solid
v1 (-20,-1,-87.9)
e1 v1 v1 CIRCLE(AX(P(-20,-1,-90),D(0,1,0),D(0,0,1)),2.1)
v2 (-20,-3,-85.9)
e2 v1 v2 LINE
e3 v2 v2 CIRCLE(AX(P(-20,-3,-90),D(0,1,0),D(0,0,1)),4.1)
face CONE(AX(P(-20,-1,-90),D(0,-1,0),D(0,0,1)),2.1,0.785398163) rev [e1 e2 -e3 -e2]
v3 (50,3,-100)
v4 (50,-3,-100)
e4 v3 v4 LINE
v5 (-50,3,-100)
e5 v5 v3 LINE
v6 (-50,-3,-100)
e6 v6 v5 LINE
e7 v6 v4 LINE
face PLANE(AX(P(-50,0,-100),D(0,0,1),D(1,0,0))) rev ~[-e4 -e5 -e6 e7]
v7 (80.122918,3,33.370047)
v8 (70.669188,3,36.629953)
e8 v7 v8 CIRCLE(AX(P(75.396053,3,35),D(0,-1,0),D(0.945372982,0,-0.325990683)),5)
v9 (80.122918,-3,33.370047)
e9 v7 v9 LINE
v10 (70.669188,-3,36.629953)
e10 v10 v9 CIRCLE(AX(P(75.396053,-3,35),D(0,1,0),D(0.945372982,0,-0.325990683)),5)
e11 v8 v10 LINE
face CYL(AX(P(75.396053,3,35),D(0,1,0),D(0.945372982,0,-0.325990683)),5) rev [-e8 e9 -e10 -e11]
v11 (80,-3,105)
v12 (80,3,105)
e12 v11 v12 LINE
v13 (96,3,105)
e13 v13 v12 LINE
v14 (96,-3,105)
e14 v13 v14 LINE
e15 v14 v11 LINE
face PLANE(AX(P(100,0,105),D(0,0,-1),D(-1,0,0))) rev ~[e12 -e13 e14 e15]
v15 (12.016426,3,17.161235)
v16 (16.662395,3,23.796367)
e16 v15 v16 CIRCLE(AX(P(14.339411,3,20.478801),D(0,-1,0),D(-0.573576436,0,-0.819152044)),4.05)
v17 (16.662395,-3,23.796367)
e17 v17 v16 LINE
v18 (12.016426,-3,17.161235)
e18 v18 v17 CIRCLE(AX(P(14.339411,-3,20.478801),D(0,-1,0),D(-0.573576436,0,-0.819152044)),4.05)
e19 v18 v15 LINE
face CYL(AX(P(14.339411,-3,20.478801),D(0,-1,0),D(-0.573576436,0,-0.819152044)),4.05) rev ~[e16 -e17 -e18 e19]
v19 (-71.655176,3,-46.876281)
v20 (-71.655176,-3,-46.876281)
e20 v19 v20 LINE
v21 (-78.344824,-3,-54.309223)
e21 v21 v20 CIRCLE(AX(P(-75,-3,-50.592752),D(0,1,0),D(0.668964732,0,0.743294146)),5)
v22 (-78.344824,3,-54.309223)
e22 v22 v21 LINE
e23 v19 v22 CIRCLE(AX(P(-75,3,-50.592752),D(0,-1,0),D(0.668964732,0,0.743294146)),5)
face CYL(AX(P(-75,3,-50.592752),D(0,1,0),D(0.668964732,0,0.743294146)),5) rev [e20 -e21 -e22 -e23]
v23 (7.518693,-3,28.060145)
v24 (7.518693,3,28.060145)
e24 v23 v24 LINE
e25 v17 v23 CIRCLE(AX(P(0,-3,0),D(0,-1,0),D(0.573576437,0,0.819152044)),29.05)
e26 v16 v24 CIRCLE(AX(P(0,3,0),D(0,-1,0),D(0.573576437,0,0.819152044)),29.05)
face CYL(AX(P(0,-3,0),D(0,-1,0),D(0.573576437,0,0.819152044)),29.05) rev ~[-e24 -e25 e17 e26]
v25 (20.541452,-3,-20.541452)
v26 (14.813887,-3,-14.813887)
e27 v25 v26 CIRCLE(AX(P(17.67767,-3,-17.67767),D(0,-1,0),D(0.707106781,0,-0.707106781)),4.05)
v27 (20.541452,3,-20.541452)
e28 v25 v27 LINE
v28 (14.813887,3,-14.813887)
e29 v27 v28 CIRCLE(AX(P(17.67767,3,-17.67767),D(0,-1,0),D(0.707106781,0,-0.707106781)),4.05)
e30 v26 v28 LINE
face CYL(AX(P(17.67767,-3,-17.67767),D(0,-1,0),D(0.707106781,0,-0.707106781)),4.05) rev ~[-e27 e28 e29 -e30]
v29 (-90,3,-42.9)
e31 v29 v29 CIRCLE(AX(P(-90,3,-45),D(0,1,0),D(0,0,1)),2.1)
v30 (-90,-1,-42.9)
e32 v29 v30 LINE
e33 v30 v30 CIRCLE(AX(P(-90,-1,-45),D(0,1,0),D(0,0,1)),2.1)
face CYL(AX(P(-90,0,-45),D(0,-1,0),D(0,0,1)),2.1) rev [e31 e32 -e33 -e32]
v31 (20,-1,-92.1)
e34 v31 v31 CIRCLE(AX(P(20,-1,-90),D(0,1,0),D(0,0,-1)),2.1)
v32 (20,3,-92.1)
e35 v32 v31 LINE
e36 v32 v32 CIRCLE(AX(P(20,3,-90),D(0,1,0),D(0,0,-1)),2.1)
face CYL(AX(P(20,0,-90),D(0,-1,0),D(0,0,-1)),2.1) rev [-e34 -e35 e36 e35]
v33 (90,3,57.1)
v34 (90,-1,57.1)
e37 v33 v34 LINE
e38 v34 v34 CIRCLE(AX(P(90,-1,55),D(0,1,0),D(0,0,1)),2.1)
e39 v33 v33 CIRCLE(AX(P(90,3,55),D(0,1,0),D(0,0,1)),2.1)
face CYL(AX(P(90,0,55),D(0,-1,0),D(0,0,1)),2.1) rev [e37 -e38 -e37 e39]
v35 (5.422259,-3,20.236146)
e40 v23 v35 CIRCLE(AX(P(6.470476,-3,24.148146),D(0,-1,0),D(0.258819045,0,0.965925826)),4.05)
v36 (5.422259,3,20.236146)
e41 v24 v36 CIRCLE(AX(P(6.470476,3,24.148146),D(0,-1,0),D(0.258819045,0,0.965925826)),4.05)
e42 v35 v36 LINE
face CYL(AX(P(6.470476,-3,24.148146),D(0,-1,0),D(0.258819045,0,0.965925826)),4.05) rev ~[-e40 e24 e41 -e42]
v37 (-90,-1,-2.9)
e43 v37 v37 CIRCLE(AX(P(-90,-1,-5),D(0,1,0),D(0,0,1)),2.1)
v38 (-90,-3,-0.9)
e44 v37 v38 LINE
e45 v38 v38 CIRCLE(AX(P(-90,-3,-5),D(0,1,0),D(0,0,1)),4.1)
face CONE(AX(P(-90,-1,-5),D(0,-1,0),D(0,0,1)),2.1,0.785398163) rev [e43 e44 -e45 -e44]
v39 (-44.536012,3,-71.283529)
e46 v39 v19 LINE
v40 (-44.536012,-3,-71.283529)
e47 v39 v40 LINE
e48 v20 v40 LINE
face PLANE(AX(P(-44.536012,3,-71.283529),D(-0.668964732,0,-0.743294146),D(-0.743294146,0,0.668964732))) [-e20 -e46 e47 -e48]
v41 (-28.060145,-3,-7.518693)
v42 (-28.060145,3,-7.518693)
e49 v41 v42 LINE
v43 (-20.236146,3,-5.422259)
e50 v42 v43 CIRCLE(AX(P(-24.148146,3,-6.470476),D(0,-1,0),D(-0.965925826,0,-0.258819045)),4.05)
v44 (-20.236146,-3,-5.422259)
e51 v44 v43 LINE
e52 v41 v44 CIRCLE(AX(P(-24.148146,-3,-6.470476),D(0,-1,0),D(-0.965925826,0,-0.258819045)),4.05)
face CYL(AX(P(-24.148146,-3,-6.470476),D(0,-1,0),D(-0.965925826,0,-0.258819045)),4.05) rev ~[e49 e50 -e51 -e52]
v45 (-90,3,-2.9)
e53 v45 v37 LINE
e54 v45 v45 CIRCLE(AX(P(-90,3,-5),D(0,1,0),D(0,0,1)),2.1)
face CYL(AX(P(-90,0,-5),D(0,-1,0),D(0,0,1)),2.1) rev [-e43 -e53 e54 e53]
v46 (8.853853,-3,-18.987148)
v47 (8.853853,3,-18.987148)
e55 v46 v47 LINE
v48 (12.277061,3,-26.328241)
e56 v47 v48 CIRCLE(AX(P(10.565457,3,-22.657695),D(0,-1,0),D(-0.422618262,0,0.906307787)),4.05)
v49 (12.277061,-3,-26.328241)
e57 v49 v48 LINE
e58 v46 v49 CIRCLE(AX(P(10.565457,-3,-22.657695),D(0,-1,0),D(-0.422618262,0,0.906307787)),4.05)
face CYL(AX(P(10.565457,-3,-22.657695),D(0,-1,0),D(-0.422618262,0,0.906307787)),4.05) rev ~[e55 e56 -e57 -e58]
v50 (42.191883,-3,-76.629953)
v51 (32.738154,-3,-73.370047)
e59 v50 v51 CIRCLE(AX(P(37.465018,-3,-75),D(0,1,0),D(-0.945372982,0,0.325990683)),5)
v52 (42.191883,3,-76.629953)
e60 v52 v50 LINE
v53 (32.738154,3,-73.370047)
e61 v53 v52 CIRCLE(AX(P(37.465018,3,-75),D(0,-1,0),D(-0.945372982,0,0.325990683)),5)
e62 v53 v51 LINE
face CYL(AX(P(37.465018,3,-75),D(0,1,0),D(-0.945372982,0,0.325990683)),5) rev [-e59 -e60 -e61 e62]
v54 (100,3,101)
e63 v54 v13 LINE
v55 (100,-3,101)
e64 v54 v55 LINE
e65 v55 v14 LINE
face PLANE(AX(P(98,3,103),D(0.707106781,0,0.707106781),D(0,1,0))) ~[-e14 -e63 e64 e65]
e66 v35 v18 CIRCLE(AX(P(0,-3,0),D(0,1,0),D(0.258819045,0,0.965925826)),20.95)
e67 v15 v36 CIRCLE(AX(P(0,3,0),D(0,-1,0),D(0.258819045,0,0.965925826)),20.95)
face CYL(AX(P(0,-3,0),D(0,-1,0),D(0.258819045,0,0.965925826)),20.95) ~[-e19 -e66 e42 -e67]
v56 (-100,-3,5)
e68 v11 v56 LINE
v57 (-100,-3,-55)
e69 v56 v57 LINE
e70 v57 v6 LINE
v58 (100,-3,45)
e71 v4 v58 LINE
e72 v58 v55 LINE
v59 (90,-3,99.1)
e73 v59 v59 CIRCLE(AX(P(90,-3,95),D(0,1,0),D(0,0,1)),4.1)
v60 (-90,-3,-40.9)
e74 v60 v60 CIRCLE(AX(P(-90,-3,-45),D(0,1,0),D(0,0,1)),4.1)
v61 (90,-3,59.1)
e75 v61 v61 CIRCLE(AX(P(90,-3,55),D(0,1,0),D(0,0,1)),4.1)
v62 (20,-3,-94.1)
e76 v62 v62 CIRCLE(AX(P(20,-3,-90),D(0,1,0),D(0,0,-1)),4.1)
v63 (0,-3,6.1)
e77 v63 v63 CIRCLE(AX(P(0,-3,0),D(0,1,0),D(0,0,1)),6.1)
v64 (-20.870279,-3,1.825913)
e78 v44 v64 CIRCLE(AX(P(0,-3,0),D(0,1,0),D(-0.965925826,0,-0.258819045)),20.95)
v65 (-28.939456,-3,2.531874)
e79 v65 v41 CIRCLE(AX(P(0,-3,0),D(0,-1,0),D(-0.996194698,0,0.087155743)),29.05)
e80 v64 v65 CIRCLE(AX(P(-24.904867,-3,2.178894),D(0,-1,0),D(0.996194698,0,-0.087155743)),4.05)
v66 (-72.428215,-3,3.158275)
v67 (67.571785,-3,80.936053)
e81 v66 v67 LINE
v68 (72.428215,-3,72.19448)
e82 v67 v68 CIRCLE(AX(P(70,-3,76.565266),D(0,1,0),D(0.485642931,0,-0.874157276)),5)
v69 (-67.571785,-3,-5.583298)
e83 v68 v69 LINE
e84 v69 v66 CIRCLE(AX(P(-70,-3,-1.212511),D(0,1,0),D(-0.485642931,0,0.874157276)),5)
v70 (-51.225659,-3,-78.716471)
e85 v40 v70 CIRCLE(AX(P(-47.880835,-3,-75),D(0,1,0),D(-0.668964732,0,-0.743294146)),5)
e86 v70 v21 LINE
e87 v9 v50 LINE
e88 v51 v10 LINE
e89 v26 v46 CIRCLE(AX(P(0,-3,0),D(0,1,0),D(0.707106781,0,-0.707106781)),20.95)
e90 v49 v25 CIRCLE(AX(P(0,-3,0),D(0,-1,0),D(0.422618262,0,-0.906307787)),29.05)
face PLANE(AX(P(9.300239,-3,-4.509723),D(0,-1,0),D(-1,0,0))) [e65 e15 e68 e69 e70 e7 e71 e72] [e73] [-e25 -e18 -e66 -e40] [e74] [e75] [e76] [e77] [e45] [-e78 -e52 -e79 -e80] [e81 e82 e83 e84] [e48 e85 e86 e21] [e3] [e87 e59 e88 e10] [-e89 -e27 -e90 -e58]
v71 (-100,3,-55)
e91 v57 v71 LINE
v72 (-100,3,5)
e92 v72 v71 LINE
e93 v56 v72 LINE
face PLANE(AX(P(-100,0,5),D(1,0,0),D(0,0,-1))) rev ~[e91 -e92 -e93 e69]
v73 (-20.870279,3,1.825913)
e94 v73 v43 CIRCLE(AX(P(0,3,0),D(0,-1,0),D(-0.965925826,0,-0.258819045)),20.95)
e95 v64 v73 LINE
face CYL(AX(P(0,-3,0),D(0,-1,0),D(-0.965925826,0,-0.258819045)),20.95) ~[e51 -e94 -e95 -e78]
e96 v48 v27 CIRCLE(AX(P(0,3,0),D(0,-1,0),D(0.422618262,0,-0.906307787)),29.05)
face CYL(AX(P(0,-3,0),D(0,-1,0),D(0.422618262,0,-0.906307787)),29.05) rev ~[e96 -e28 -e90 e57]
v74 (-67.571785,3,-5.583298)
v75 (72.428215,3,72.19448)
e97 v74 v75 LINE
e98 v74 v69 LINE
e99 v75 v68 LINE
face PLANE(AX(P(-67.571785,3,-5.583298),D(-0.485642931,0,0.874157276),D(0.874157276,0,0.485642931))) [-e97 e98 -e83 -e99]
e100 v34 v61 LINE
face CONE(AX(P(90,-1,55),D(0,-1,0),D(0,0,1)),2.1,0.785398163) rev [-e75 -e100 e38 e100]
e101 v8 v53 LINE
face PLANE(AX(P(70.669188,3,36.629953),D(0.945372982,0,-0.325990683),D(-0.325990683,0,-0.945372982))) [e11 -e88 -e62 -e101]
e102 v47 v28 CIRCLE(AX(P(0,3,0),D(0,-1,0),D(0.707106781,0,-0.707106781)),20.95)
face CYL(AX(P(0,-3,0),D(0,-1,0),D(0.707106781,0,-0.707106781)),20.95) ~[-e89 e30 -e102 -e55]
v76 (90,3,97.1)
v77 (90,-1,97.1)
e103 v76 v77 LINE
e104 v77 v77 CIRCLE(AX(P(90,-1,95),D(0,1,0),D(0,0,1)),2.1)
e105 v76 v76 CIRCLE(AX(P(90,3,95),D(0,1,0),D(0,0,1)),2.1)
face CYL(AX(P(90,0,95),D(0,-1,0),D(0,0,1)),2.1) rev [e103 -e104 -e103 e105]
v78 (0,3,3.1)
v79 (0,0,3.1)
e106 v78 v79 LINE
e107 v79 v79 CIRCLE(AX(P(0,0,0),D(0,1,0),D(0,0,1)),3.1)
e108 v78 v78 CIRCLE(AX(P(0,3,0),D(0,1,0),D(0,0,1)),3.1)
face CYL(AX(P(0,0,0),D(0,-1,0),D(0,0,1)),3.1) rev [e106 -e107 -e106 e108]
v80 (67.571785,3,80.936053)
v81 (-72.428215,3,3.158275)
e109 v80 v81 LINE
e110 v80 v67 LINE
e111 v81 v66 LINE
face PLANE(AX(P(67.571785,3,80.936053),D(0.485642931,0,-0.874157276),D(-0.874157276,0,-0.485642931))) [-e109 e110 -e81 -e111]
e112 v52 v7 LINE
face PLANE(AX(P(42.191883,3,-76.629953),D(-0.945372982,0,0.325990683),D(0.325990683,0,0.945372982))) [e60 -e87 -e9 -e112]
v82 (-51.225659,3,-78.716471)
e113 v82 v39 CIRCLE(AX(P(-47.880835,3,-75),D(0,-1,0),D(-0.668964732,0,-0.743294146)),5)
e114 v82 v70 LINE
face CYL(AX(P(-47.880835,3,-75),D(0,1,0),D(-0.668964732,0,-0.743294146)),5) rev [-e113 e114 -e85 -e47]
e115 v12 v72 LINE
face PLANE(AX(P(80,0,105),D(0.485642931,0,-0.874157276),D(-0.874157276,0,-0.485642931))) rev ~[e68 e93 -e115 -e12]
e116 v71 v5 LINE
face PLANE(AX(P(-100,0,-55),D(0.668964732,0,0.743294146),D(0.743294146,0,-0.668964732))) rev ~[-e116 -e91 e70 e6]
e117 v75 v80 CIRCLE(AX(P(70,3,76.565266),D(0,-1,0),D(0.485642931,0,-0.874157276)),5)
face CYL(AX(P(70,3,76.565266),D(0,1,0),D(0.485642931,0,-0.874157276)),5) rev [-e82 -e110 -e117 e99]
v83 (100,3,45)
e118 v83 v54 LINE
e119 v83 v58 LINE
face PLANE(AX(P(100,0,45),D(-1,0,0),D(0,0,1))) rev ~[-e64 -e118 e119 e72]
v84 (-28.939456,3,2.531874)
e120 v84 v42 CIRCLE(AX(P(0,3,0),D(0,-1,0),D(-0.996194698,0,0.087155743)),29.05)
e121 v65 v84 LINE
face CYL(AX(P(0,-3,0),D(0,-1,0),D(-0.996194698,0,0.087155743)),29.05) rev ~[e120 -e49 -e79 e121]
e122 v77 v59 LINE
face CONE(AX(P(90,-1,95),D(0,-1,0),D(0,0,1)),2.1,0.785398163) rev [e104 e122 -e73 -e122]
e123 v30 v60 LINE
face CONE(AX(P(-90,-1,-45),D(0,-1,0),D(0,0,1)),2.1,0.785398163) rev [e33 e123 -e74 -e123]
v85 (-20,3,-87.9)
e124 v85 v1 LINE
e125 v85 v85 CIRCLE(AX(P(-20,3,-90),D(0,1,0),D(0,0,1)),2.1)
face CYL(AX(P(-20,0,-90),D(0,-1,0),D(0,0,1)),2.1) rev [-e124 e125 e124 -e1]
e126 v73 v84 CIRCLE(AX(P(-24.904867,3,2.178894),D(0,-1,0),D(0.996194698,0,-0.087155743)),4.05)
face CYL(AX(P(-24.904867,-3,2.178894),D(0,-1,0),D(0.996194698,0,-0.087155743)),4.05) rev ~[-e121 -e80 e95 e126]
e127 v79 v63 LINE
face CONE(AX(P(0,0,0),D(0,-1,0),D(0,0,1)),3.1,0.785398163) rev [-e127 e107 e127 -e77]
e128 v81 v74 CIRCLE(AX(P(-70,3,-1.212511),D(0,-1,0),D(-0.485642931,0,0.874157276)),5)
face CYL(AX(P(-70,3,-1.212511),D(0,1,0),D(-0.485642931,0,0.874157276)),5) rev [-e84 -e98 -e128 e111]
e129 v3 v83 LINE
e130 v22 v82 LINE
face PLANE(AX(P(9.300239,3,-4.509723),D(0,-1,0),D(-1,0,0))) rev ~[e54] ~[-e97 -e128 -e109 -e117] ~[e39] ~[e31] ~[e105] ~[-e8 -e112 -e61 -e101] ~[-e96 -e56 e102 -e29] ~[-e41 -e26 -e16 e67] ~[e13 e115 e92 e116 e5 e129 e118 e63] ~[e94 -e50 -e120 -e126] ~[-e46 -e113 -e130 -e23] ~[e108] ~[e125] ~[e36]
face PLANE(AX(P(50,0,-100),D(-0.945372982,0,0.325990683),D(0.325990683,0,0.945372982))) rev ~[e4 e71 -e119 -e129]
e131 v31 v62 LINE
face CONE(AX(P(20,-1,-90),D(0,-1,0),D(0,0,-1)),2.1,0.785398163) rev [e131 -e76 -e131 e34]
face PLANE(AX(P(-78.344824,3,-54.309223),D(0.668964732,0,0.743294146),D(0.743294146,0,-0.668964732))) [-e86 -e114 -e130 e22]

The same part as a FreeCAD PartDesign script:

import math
import FreeCAD as App
import Part
import Sketcher

V = App.Vector
Q = App.Units.Quantity


def edges_at(feature, points):
    """Names of the edges that pass closest to the given points."""
    edges = feature.Shape.Edges
    near = lambda p: min(range(len(edges)), key=lambda i: edges[i].distToShape(Part.Vertex(*p))[0])
    return sorted({f"Edge{near(p) + 1}" for p in points})


def add_polygon(sketch, points):
    """Adds a closed chain of lines whose ends are joined by coincident constraints."""
    first, n = sketch.GeometryCount, len(points)
    for a, b in zip(points, points[1:] + points[:1]):
        sketch.addGeometry(Part.LineSegment(App.Vector(*a, 0), App.Vector(*b, 0)), False)
    for i in range(n):
        sketch.addConstraint(Sketcher.Constraint("Coincident", first + i, 2, first + (i + 1) % n, 1))

doc = App.newDocument("Part")
body = doc.addObject("PartDesign::Body", "Body")

sketch1 = body.newObject("Sketcher::SketchObject", "Sketch")
sketch1.AttachmentSupport = (doc.getObject("XZ_Plane"), [""])
sketch1.MapMode = "FlatFace"
add_polygon(sketch1, [(50, -100), (-50, -100), (-100, -55), (-100, 5), (80, 105), (100, 105), (100, 45)])
sketch1.addGeometry(Part.Circle(V(90, 95, 0), V(0, 0, 1), 2.1), False)
sketch1.addGeometry(Part.Circle(V(90, 55, 0), V(0, 0, 1), 2.1), False)
sketch1.addGeometry(Part.Circle(V(20, -90, 0), V(0, 0, 1), 2.1), False)
sketch1.addGeometry(Part.Circle(V(0, 0, 0), V(0, 0, 1), 3.1), False)
sketch1.addGeometry(Part.Circle(V(-90, -5, 0), V(0, 0, 1), 2.1), False)
sketch1.addGeometry(Part.Circle(V(-20, -90, 0), V(0, 0, 1), 2.1), False)
sketch1.addGeometry(Part.Circle(V(-90, -45, 0), V(0, 0, 1), 2.1), False)
sketch1.addConstraint(Sketcher.Constraint("Horizontal", 0))
sketch1.addConstraint(Sketcher.Constraint("Vertical", 2))
sketch1.addConstraint(Sketcher.Constraint("Horizontal", 4))
sketch1.addConstraint(Sketcher.Constraint("Vertical", 5))
sketch1.addConstraint(Sketcher.Constraint("Coincident", 10, 3, -1, 1))
sketch1.addConstraint(Sketcher.Constraint("Equal", 7, 8))
sketch1.addConstraint(Sketcher.Constraint("Equal", 8, 9))
sketch1.addConstraint(Sketcher.Constraint("Equal", 9, 11))
sketch1.addConstraint(Sketcher.Constraint("Equal", 11, 12))
sketch1.addConstraint(Sketcher.Constraint("Equal", 12, 13))
sketch1.addConstraint(Sketcher.Constraint("Symmetric", 9, 3, 12, 3, -2))
sketch1.addConstraint(Sketcher.Constraint("Vertical", 7, 3, 8, 3))
sketch1.addConstraint(Sketcher.Constraint("Vertical", 11, 3, 13, 3))
sketch1.addConstraint(Sketcher.Constraint("Equal", 2, 5))
sketch1.addConstraint(Sketcher.Constraint("Diameter", 7, Q("4.2 mm")))
sketch1.addConstraint(Sketcher.Constraint("Diameter", 10, Q("6.2 mm")))
sketch1.addConstraint(Sketcher.Constraint("DistanceX", 0, 2, 0, 1, Q("100 mm")))
sketch1.addConstraint(Sketcher.Constraint("DistanceX", 4, 1, 4, 2, Q("20 mm")))
sketch1.addConstraint(Sketcher.Constraint("DistanceY", 2, 1, 2, 2, Q("60 mm")))
sketch1.addConstraint(Sketcher.Constraint("DistanceX", -1, 1, 7, 3, Q("90 mm")))
sketch1.addConstraint(Sketcher.Constraint("DistanceY", -1, 1, 7, 3, Q("95 mm")))
sketch1.addConstraint(Sketcher.Constraint("DistanceY", -1, 1, 8, 3, Q("55 mm")))
sketch1.addConstraint(Sketcher.Constraint("DistanceX", -1, 1, 9, 3, Q("20 mm")))
sketch1.addConstraint(Sketcher.Constraint("DistanceY", 9, 3, -1, 1, Q("90 mm")))
sketch1.addConstraint(Sketcher.Constraint("DistanceX", 11, 3, -1, 1, Q("90 mm")))
sketch1.addConstraint(Sketcher.Constraint("DistanceY", 11, 3, -1, 1, Q("5 mm")))
sketch1.addConstraint(Sketcher.Constraint("DistanceY", 13, 3, -1, 1, Q("45 mm")))
sketch1.addConstraint(Sketcher.Constraint("DistanceX", 0, 2, -1, 1, Q("50 mm")))
sketch1.addConstraint(Sketcher.Constraint("DistanceY", 0, 2, -1, 1, Q("100 mm")))
sketch1.addConstraint(Sketcher.Constraint("DistanceX", 1, 2, -1, 1, Q("100 mm")))
sketch1.addConstraint(Sketcher.Constraint("DistanceY", 1, 2, -1, 1, Q("55 mm")))
sketch1.addConstraint(Sketcher.Constraint("DistanceX", -1, 1, 3, 2, Q("80 mm")))
sketch1.addConstraint(Sketcher.Constraint("DistanceY", -1, 1, 3, 2, Q("105 mm")))
pad1 = body.newObject("PartDesign::Pad", "Pad")
pad1.Profile = sketch1
pad1.Length = 6
pad1.Midplane = True
doc.recompute()

chamfer = body.newObject("PartDesign::Chamfer", "Chamfer")
chamfer.Base = (pad1, edges_at(pad1, [
    (-20, -3, -92.1),
    (-90, -3, -47.1),
    (-90, -3, -7.1),
    (90, -3, 52.9),
    (90, -3, 92.9),
    (20, -3, -87.9),
]))
chamfer.Size = 2
doc.recompute()

chamfer2 = body.newObject("PartDesign::Chamfer", "Chamfer001")
chamfer2.Base = (chamfer, edges_at(chamfer, [(100, 0, 105)]))
chamfer2.Size = 4

sketch2 = body.newObject("Sketcher::SketchObject", "Sketch001")
sketch2.AttachmentSupport = (doc.getObject("XZ_Plane"), [""])
sketch2.MapMode = "FlatFace"
sketch2.AttachmentOffset = App.Placement(V(0, 0, -3), App.Rotation())
sketch2.addGeometry(Part.LineSegment(V(-51, -79, 0), V(-78, -54, 0)), False)
sketch2.addGeometry(Part.ArcOfCircle(Part.Circle(V(-75, -51, 0), V(0, 0, 1), 5), math.radians(48), math.radians(228)), False)
sketch2.addGeometry(Part.LineSegment(V(-72, -47, 0), V(-45, -71, 0)), False)
sketch2.addGeometry(Part.ArcOfCircle(Part.Circle(V(-48, -75, 0), V(0, 0, 1), 5), math.radians(-132), math.radians(48)), False)
sketch2.addGeometry(Part.LineSegment(V(33, -73, 0), V(71, 37, 0)), False)
sketch2.addGeometry(Part.ArcOfCircle(Part.Circle(V(75, 35, 0), V(0, 0, 1), 5), math.radians(-19), math.radians(161)), False)
sketch2.addGeometry(Part.LineSegment(V(80, 33, 0), V(42, -77, 0)), False)
sketch2.addGeometry(Part.ArcOfCircle(Part.Circle(V(37, -75, 0), V(0, 0, 1), 5), math.radians(161), math.radians(341)), False)
sketch2.addGeometry(Part.LineSegment(V(-72, 3, 0), V(68, 81, 0)), False)
sketch2.addGeometry(Part.ArcOfCircle(Part.Circle(V(70, 77, 0), V(0, 0, 1), 5), math.radians(-61), math.radians(119)), False)
sketch2.addGeometry(Part.LineSegment(V(72, 72, 0), V(-68, -6, 0)), False)
sketch2.addGeometry(Part.ArcOfCircle(Part.Circle(V(-70, -1, 0), V(0, 0, 1), 5), math.radians(119), math.radians(299)), False)
sketch2.addConstraint(Sketcher.Constraint("Tangent", 0, 2, 1, 2))
sketch2.addConstraint(Sketcher.Constraint("Tangent", 1, 1, 2, 1))
sketch2.addConstraint(Sketcher.Constraint("Tangent", 2, 2, 3, 2))
sketch2.addConstraint(Sketcher.Constraint("Tangent", 3, 1, 0, 1))
sketch2.addConstraint(Sketcher.Constraint("Tangent", 4, 2, 5, 2))
sketch2.addConstraint(Sketcher.Constraint("Tangent", 5, 1, 6, 1))
sketch2.addConstraint(Sketcher.Constraint("Tangent", 6, 2, 7, 2))
sketch2.addConstraint(Sketcher.Constraint("Tangent", 7, 1, 4, 1))
sketch2.addConstraint(Sketcher.Constraint("Tangent", 8, 2, 9, 2))
sketch2.addConstraint(Sketcher.Constraint("Tangent", 9, 1, 10, 1))
sketch2.addConstraint(Sketcher.Constraint("Tangent", 10, 2, 11, 2))
sketch2.addConstraint(Sketcher.Constraint("Tangent", 11, 1, 8, 1))
sketch2.addConstraint(Sketcher.Constraint("Equal", 1, 3))
sketch2.addConstraint(Sketcher.Constraint("Equal", 3, 5))
sketch2.addConstraint(Sketcher.Constraint("Equal", 5, 7))
sketch2.addConstraint(Sketcher.Constraint("Equal", 7, 9))
sketch2.addConstraint(Sketcher.Constraint("Equal", 9, 11))
sketch2.addConstraint(Sketcher.Constraint("Horizontal", 3, 3, 7, 3))
sketch2.addConstraint(Sketcher.Constraint("Radius", 1, Q("5 mm")))
sketch2.addConstraint(Sketcher.Constraint("DistanceX", 1, 3, -1, 1, Q("75 mm")))
sketch2.addConstraint(Sketcher.Constraint("DistanceY", 3, 3, -1, 1, Q("75 mm")))
sketch2.addConstraint(Sketcher.Constraint("DistanceY", -1, 1, 5, 3, Q("35 mm")))
sketch2.addConstraint(Sketcher.Constraint("DistanceX", -1, 1, 9, 3, Q("70 mm")))
sketch2.addConstraint(Sketcher.Constraint("DistanceX", 11, 3, -1, 1, Q("70 mm")))
sketch2.addConstraint(Sketcher.Constraint("DistanceX", 2, 2, 4, 2, Q("115.2052 mm")))
sketch2.addConstraint(Sketcher.Constraint("DistanceX", 7, 3, 5, 1, Q("42.657899 mm")))
sketch2.addConstraint(Sketcher.Constraint("DistanceY", 4, 2, 8, 2, Q("44.306099 mm")))
sketch2.addConstraint(Sketcher.Constraint("DistanceY", 1, 3, -1, 1, Q("50.592752 mm")))
sketch2.addConstraint(Sketcher.Constraint("DistanceX", -1, 1, 7, 3, Q("37.465018 mm")))
sketch2.addConstraint(Sketcher.Constraint("DistanceY", 11, 3, -1, 1, Q("1.212511 mm")))
pocket1 = body.newObject("PartDesign::Pocket", "Pocket")
pocket1.Profile = sketch2
pocket1.Type = "ThroughAll"
pocket1.Reversed = True
doc.recompute()

chamfer3 = body.newObject("PartDesign::Chamfer", "Chamfer002")
chamfer3.Base = (pocket1, edges_at(pocket1, [(0, -3, -3.1)]))
chamfer3.Size = 3

sketch3 = body.newObject("Sketcher::SketchObject", "Sketch002")
sketch3.AttachmentSupport = (doc.getObject("XZ_Plane"), [""])
sketch3.MapMode = "FlatFace"
sketch3.AttachmentOffset = App.Placement(V(0, 0, 3), App.Rotation())
sketch3.addGeometry(Part.ArcOfCircle(Part.Circle(V(0, 0, 0), V(0, 0, 1), 29), math.radians(-65), math.radians(-45)), False)
sketch3.addGeometry(Part.ArcOfCircle(Part.Circle(V(17.7, -17.7, 0), V(0, 0, 1), 4), math.radians(-45), math.radians(135)), False)
sketch3.addGeometry(Part.ArcOfCircle(Part.Circle(V(0, 0, 0), V(0, 0, 1), 20.9), math.radians(-65), math.radians(-45)), False)
sketch3.addGeometry(Part.ArcOfCircle(Part.Circle(V(10.6, -22.7, 0), V(0, 0, 1), 4), math.radians(115), math.radians(295)), False)
sketch3.addConstraint(Sketcher.Constraint("Tangent", 0, 2, 1, 1))
sketch3.addConstraint(Sketcher.Constraint("Tangent", 1, 2, 2, 2))
sketch3.addConstraint(Sketcher.Constraint("Tangent", 2, 1, 3, 1))
sketch3.addConstraint(Sketcher.Constraint("Tangent", 3, 2, 0, 1))
sketch3.addConstraint(Sketcher.Constraint("Coincident", 0, 3, -1, 1))
sketch3.addConstraint(Sketcher.Constraint("Coincident", 2, 3, -1, 1))
sketch3.addConstraint(Sketcher.Constraint("Radius", 0, Q("29.05 mm")))
sketch3.addConstraint(Sketcher.Constraint("Radius", 1, Q("4.05 mm")))
sketch3.addConstraint(Sketcher.Constraint("DistanceX", 2, 1, 0, 2, Q("11.687599 mm")))
sketch3.addConstraint(Sketcher.Constraint("DistanceX", -1, 1, 1, 3, Q("17.67767 mm")))
pocket2 = body.newObject("PartDesign::Pocket", "Pocket001")
pocket2.Profile = sketch3
pocket2.Type = "ThroughAll"
doc.recompute()

polarpattern = body.newObject("PartDesign::PolarPattern", "PolarPattern")
polarpattern.Originals = [pocket2]
polarpattern.Axis = (doc.getObject("Y_Axis"), [""])
polarpattern.Angle = 360
polarpattern.Occurrences = 3
body.Tip = polarpattern

doc.recompute()
